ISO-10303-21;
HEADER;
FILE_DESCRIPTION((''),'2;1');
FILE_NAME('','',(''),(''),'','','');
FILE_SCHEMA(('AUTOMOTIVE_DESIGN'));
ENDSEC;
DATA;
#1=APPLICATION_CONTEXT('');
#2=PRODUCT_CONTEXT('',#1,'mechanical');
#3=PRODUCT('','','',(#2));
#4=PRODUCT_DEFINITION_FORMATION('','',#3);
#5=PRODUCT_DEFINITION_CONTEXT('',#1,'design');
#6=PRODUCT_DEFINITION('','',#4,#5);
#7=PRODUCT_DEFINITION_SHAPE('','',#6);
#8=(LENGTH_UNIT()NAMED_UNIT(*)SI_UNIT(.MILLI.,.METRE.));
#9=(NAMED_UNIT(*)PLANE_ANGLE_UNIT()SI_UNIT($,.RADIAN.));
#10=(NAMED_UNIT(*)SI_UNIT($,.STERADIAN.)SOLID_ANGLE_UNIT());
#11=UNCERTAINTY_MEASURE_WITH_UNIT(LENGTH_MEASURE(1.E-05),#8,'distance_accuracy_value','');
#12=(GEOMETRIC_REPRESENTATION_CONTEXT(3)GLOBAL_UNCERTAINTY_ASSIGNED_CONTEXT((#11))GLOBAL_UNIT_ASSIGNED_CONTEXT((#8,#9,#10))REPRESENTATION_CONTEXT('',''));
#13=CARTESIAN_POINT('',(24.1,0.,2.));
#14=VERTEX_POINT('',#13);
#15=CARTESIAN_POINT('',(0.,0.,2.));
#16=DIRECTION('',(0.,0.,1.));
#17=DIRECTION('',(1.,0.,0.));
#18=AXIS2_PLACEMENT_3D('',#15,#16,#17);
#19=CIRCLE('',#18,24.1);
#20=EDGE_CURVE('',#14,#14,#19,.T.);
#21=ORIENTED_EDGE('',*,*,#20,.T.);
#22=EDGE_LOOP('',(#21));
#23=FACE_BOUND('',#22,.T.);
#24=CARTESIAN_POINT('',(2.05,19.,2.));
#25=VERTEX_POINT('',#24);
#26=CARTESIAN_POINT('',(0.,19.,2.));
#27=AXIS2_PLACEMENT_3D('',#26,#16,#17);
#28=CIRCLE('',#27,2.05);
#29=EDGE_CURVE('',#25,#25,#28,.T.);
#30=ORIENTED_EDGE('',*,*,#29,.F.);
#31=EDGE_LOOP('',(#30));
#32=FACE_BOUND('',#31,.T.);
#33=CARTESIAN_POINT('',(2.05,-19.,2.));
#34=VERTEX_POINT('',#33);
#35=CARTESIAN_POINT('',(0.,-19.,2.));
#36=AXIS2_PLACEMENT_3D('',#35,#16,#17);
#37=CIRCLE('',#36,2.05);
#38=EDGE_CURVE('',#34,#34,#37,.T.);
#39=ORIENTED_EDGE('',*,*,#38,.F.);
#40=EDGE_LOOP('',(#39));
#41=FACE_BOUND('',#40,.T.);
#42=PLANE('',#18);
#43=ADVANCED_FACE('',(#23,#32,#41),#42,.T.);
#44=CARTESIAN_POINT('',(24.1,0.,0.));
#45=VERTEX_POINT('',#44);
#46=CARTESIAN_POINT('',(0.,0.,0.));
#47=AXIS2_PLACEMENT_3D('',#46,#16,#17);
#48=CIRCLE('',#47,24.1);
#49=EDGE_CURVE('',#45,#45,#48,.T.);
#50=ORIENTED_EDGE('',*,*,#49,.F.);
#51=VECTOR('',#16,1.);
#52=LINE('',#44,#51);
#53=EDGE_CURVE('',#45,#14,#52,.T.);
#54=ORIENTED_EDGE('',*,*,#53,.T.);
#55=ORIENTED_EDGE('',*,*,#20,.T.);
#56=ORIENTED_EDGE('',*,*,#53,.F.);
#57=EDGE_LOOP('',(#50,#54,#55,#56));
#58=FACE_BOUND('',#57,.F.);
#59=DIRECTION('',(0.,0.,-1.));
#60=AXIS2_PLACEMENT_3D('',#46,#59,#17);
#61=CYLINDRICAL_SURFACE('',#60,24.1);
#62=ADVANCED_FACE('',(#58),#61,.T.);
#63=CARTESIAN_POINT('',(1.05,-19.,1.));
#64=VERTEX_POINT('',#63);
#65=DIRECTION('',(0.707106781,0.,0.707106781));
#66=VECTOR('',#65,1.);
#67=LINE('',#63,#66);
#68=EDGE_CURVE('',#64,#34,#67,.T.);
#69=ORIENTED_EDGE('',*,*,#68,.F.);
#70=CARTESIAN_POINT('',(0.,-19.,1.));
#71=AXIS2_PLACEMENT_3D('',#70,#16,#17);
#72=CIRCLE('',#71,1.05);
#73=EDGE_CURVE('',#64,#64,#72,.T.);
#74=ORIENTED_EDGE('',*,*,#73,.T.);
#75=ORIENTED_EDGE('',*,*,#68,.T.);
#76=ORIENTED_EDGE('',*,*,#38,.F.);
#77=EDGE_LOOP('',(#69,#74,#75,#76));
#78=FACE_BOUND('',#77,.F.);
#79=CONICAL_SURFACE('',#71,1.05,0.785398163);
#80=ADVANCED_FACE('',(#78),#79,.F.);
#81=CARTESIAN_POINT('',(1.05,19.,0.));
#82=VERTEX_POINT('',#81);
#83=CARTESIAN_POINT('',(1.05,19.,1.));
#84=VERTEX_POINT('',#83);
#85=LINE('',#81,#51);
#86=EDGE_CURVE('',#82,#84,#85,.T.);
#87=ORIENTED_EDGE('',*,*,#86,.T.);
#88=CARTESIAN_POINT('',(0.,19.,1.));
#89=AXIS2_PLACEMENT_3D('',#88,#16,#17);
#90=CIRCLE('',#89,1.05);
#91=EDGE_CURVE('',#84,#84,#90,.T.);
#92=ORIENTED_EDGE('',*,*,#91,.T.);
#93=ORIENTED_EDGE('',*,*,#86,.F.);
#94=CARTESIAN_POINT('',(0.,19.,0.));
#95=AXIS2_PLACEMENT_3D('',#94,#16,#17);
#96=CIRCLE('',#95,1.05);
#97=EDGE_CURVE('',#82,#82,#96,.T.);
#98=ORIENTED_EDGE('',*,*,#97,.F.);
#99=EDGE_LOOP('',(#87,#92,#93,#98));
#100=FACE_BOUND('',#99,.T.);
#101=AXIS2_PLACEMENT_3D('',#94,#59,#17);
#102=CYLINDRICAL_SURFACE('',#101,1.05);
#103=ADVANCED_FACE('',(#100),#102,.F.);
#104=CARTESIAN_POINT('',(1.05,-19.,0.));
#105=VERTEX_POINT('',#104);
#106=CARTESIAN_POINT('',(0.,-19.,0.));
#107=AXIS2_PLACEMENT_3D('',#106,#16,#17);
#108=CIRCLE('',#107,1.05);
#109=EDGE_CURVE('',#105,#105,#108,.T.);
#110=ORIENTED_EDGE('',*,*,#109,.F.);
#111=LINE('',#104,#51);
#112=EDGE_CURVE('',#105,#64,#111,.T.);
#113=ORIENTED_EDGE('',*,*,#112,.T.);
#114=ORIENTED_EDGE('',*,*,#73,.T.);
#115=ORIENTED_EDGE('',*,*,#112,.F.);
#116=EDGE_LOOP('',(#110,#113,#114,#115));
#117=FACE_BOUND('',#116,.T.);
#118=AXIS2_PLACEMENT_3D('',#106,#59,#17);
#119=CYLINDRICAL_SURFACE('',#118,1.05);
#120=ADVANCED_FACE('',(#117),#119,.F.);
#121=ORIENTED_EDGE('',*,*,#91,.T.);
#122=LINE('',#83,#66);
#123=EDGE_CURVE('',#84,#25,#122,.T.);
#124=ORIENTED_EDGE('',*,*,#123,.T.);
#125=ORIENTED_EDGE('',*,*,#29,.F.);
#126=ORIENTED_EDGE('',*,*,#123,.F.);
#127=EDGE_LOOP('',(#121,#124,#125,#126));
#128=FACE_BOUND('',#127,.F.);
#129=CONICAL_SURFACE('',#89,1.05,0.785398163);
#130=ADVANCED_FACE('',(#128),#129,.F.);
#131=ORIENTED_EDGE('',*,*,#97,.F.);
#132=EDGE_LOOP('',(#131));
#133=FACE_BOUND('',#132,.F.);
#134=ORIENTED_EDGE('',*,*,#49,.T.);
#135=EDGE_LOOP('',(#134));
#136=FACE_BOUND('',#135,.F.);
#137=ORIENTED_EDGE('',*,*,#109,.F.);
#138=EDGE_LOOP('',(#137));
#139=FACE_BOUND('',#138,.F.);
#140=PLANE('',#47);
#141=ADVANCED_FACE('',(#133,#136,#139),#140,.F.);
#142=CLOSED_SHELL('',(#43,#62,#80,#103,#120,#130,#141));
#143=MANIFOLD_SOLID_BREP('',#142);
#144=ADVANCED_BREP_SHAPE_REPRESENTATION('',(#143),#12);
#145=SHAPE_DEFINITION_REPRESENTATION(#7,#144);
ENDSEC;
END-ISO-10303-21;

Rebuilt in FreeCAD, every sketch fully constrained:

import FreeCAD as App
import Part
import Sketcher
from FreeCAD import Vector


def edges_at(feature, points):
    """Names of the edges that pass closest to the given points."""
    edges = feature.Shape.Edges
    near = lambda p: min(range(len(edges)), key=lambda i: edges[i].distToShape(Part.Vertex(*p))[0])
    return sorted({f"Edge{near(p) + 1}" for p in points})

doc = App.newDocument("Part")
body = doc.addObject("PartDesign::Body", "Body")

# Sketch on XY plane
sketch1 = body.newObject("Sketcher::SketchObject", "Sketch")
sketch1.AttachmentSupport = (doc.getObject("XY_Plane"), [""])
sketch1.MapMode = "FlatFace"
sketch1.addGeometry([
    Part.Circle(Vector(0, 0, 0), Vector(0, 0, 1), 24.1),
    Part.Circle(Vector(0, -19, 0), Vector(0, 0, 1), 1.1),
    Part.Circle(Vector(0, 19, 0), Vector(0, 0, 1), 1.1),
], False)
sketch1.addConstraint([
    Sketcher.Constraint("Coincident", 0, 3, -1, 1),
    Sketcher.Constraint("Equal", 1, 2),
    Sketcher.Constraint("Symmetric", 1, 3, 2, 3, -1, 1),
    Sketcher.Constraint("PointOnObject", 1, 3, -2),
    Sketcher.Constraint("Diameter", 0, 48.2),
    Sketcher.Constraint("Diameter", 1, 2.1),
    Sketcher.Constraint("DistanceY", 1, 3, -1, 1, 19.0),
])
pad1 = body.newObject("PartDesign::Pad", "Pad")
pad1.Profile = sketch1
pad1.Length = 2
doc.recompute()

chamfer = body.newObject("PartDesign::Chamfer", "Chamfer")
chamfer.Base = (pad1, edges_at(pad1, [(-1.05, 19, 2), (-1.05, -19, 2)]))
chamfer.Size = 1

doc.recompute()
